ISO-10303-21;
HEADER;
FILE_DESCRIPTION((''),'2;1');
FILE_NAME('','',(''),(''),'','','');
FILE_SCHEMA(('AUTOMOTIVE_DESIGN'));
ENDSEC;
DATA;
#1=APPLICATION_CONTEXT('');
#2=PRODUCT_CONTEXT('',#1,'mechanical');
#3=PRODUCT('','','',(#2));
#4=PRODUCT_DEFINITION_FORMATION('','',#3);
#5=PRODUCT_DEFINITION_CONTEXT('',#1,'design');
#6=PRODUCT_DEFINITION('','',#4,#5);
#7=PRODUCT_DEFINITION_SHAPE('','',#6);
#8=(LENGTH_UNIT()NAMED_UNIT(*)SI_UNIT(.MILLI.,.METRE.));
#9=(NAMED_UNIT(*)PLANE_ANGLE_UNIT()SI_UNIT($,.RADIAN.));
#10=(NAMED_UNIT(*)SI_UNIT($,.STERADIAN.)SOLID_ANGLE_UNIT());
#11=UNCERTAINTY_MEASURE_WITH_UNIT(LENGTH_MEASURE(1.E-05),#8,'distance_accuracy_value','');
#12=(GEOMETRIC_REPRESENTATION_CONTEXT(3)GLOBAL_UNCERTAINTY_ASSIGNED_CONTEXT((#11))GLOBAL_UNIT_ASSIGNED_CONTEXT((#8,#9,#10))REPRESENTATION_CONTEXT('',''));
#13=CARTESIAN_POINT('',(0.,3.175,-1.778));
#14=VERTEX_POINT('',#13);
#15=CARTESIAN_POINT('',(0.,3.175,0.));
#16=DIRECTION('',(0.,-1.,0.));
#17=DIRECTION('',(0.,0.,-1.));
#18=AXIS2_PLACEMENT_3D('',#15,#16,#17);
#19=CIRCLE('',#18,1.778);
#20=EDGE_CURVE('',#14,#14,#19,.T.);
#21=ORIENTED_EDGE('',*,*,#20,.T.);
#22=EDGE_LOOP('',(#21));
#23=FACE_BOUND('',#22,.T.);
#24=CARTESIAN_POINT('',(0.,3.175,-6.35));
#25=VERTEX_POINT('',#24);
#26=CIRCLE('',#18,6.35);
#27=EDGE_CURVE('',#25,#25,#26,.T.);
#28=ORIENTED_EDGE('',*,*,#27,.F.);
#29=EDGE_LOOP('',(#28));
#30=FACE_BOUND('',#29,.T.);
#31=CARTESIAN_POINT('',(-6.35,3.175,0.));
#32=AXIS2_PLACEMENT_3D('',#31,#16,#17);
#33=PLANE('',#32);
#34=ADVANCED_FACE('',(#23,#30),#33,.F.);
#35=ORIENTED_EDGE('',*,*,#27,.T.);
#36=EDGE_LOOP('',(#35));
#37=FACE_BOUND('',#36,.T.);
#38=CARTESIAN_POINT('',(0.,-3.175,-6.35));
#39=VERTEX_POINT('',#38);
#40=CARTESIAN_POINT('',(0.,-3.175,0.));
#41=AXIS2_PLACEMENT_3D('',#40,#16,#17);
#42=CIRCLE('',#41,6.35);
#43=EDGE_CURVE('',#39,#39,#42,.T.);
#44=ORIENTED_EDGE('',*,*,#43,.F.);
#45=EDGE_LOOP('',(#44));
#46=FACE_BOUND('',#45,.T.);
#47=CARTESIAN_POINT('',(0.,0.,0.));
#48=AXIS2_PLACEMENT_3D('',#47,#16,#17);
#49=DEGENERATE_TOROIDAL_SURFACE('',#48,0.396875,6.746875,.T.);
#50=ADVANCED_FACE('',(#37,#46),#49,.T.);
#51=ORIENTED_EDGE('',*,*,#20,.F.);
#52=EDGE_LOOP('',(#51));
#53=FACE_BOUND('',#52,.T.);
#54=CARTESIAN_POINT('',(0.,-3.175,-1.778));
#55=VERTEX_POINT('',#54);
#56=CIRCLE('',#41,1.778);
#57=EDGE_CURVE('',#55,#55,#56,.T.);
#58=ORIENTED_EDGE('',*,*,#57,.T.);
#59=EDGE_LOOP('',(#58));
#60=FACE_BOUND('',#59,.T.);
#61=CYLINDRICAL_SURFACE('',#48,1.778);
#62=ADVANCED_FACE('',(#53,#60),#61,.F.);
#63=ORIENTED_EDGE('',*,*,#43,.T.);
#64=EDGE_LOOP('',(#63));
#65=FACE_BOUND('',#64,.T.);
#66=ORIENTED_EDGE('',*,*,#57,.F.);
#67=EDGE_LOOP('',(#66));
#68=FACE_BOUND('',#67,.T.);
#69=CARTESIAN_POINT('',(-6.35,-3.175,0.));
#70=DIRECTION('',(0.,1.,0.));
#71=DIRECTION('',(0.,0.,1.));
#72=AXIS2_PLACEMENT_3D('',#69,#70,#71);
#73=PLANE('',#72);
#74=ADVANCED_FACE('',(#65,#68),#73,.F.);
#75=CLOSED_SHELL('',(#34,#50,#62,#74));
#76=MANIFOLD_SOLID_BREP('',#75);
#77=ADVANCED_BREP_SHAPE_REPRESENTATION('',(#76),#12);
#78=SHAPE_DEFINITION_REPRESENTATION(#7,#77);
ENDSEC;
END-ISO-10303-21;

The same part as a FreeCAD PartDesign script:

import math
import FreeCAD as App
import Part
import Sketcher
Q = App.Units.Quantity

doc = App.newDocument("Part")
body = doc.addObject("PartDesign::Body", "Body")

sketch1 = doc.addObject("Sketcher::SketchObject", "Sketch")
body.addObject(sketch1)
sketch1.AttachmentSupport = (doc.XY_Plane, [""])
sketch1.MapMode = "FlatFace"
sketch1.addGeometry([
    Part.LineSegment(App.Vector(-1.8, 3.2, 0), App.Vector(-6.3, 3.2, 0)),
    Part.ArcOfCircle(Part.Circle(App.Vector(-0.4, 0, 0), App.Vector(0, 0, 1), 6.7), math.radians(152), math.radians(208)),
    Part.LineSegment(App.Vector(-6.3, -3.2, 0), App.Vector(-1.8, -3.2, 0)),
    Part.LineSegment(App.Vector(-1.8, -3.2, 0), App.Vector(-1.8, 3.2, 0)),
], False)
sketch1.addConstraint([
    Sketcher.Constraint("Coincident", 0, 2, 1, 1),
    Sketcher.Constraint("Coincident", 1, 2, 2, 1),
    Sketcher.Constraint("Coincident", 2, 2, 3, 1),
    Sketcher.Constraint("Coincident", 3, 2, 0, 1),
    Sketcher.Constraint("Horizontal", 0),
    Sketcher.Constraint("Horizontal", 2),
    Sketcher.Constraint("Vertical", 3),
    Sketcher.Constraint("Symmetric", 0, 2, 1, 2, -1),
    Sketcher.Constraint("Radius", 1, Q("0.265625 in")),
    Sketcher.Constraint("DistanceX", 0, 2, 0, 1, Q("0.18 in")),
    Sketcher.Constraint("DistanceY", 3, 1, 3, 2, Q("0.25 in")),
    Sketcher.Constraint("DistanceX", 0, 2, -1, 1, Q("0.25 in")),
])
revolution = doc.addObject("PartDesign::Revolution", "Revolution")
body.addObject(revolution)
revolution.Profile = sketch1
revolution.ReferenceAxis = (sketch1, ["V_Axis"])
revolution.Angle = 360

doc.recompute()
